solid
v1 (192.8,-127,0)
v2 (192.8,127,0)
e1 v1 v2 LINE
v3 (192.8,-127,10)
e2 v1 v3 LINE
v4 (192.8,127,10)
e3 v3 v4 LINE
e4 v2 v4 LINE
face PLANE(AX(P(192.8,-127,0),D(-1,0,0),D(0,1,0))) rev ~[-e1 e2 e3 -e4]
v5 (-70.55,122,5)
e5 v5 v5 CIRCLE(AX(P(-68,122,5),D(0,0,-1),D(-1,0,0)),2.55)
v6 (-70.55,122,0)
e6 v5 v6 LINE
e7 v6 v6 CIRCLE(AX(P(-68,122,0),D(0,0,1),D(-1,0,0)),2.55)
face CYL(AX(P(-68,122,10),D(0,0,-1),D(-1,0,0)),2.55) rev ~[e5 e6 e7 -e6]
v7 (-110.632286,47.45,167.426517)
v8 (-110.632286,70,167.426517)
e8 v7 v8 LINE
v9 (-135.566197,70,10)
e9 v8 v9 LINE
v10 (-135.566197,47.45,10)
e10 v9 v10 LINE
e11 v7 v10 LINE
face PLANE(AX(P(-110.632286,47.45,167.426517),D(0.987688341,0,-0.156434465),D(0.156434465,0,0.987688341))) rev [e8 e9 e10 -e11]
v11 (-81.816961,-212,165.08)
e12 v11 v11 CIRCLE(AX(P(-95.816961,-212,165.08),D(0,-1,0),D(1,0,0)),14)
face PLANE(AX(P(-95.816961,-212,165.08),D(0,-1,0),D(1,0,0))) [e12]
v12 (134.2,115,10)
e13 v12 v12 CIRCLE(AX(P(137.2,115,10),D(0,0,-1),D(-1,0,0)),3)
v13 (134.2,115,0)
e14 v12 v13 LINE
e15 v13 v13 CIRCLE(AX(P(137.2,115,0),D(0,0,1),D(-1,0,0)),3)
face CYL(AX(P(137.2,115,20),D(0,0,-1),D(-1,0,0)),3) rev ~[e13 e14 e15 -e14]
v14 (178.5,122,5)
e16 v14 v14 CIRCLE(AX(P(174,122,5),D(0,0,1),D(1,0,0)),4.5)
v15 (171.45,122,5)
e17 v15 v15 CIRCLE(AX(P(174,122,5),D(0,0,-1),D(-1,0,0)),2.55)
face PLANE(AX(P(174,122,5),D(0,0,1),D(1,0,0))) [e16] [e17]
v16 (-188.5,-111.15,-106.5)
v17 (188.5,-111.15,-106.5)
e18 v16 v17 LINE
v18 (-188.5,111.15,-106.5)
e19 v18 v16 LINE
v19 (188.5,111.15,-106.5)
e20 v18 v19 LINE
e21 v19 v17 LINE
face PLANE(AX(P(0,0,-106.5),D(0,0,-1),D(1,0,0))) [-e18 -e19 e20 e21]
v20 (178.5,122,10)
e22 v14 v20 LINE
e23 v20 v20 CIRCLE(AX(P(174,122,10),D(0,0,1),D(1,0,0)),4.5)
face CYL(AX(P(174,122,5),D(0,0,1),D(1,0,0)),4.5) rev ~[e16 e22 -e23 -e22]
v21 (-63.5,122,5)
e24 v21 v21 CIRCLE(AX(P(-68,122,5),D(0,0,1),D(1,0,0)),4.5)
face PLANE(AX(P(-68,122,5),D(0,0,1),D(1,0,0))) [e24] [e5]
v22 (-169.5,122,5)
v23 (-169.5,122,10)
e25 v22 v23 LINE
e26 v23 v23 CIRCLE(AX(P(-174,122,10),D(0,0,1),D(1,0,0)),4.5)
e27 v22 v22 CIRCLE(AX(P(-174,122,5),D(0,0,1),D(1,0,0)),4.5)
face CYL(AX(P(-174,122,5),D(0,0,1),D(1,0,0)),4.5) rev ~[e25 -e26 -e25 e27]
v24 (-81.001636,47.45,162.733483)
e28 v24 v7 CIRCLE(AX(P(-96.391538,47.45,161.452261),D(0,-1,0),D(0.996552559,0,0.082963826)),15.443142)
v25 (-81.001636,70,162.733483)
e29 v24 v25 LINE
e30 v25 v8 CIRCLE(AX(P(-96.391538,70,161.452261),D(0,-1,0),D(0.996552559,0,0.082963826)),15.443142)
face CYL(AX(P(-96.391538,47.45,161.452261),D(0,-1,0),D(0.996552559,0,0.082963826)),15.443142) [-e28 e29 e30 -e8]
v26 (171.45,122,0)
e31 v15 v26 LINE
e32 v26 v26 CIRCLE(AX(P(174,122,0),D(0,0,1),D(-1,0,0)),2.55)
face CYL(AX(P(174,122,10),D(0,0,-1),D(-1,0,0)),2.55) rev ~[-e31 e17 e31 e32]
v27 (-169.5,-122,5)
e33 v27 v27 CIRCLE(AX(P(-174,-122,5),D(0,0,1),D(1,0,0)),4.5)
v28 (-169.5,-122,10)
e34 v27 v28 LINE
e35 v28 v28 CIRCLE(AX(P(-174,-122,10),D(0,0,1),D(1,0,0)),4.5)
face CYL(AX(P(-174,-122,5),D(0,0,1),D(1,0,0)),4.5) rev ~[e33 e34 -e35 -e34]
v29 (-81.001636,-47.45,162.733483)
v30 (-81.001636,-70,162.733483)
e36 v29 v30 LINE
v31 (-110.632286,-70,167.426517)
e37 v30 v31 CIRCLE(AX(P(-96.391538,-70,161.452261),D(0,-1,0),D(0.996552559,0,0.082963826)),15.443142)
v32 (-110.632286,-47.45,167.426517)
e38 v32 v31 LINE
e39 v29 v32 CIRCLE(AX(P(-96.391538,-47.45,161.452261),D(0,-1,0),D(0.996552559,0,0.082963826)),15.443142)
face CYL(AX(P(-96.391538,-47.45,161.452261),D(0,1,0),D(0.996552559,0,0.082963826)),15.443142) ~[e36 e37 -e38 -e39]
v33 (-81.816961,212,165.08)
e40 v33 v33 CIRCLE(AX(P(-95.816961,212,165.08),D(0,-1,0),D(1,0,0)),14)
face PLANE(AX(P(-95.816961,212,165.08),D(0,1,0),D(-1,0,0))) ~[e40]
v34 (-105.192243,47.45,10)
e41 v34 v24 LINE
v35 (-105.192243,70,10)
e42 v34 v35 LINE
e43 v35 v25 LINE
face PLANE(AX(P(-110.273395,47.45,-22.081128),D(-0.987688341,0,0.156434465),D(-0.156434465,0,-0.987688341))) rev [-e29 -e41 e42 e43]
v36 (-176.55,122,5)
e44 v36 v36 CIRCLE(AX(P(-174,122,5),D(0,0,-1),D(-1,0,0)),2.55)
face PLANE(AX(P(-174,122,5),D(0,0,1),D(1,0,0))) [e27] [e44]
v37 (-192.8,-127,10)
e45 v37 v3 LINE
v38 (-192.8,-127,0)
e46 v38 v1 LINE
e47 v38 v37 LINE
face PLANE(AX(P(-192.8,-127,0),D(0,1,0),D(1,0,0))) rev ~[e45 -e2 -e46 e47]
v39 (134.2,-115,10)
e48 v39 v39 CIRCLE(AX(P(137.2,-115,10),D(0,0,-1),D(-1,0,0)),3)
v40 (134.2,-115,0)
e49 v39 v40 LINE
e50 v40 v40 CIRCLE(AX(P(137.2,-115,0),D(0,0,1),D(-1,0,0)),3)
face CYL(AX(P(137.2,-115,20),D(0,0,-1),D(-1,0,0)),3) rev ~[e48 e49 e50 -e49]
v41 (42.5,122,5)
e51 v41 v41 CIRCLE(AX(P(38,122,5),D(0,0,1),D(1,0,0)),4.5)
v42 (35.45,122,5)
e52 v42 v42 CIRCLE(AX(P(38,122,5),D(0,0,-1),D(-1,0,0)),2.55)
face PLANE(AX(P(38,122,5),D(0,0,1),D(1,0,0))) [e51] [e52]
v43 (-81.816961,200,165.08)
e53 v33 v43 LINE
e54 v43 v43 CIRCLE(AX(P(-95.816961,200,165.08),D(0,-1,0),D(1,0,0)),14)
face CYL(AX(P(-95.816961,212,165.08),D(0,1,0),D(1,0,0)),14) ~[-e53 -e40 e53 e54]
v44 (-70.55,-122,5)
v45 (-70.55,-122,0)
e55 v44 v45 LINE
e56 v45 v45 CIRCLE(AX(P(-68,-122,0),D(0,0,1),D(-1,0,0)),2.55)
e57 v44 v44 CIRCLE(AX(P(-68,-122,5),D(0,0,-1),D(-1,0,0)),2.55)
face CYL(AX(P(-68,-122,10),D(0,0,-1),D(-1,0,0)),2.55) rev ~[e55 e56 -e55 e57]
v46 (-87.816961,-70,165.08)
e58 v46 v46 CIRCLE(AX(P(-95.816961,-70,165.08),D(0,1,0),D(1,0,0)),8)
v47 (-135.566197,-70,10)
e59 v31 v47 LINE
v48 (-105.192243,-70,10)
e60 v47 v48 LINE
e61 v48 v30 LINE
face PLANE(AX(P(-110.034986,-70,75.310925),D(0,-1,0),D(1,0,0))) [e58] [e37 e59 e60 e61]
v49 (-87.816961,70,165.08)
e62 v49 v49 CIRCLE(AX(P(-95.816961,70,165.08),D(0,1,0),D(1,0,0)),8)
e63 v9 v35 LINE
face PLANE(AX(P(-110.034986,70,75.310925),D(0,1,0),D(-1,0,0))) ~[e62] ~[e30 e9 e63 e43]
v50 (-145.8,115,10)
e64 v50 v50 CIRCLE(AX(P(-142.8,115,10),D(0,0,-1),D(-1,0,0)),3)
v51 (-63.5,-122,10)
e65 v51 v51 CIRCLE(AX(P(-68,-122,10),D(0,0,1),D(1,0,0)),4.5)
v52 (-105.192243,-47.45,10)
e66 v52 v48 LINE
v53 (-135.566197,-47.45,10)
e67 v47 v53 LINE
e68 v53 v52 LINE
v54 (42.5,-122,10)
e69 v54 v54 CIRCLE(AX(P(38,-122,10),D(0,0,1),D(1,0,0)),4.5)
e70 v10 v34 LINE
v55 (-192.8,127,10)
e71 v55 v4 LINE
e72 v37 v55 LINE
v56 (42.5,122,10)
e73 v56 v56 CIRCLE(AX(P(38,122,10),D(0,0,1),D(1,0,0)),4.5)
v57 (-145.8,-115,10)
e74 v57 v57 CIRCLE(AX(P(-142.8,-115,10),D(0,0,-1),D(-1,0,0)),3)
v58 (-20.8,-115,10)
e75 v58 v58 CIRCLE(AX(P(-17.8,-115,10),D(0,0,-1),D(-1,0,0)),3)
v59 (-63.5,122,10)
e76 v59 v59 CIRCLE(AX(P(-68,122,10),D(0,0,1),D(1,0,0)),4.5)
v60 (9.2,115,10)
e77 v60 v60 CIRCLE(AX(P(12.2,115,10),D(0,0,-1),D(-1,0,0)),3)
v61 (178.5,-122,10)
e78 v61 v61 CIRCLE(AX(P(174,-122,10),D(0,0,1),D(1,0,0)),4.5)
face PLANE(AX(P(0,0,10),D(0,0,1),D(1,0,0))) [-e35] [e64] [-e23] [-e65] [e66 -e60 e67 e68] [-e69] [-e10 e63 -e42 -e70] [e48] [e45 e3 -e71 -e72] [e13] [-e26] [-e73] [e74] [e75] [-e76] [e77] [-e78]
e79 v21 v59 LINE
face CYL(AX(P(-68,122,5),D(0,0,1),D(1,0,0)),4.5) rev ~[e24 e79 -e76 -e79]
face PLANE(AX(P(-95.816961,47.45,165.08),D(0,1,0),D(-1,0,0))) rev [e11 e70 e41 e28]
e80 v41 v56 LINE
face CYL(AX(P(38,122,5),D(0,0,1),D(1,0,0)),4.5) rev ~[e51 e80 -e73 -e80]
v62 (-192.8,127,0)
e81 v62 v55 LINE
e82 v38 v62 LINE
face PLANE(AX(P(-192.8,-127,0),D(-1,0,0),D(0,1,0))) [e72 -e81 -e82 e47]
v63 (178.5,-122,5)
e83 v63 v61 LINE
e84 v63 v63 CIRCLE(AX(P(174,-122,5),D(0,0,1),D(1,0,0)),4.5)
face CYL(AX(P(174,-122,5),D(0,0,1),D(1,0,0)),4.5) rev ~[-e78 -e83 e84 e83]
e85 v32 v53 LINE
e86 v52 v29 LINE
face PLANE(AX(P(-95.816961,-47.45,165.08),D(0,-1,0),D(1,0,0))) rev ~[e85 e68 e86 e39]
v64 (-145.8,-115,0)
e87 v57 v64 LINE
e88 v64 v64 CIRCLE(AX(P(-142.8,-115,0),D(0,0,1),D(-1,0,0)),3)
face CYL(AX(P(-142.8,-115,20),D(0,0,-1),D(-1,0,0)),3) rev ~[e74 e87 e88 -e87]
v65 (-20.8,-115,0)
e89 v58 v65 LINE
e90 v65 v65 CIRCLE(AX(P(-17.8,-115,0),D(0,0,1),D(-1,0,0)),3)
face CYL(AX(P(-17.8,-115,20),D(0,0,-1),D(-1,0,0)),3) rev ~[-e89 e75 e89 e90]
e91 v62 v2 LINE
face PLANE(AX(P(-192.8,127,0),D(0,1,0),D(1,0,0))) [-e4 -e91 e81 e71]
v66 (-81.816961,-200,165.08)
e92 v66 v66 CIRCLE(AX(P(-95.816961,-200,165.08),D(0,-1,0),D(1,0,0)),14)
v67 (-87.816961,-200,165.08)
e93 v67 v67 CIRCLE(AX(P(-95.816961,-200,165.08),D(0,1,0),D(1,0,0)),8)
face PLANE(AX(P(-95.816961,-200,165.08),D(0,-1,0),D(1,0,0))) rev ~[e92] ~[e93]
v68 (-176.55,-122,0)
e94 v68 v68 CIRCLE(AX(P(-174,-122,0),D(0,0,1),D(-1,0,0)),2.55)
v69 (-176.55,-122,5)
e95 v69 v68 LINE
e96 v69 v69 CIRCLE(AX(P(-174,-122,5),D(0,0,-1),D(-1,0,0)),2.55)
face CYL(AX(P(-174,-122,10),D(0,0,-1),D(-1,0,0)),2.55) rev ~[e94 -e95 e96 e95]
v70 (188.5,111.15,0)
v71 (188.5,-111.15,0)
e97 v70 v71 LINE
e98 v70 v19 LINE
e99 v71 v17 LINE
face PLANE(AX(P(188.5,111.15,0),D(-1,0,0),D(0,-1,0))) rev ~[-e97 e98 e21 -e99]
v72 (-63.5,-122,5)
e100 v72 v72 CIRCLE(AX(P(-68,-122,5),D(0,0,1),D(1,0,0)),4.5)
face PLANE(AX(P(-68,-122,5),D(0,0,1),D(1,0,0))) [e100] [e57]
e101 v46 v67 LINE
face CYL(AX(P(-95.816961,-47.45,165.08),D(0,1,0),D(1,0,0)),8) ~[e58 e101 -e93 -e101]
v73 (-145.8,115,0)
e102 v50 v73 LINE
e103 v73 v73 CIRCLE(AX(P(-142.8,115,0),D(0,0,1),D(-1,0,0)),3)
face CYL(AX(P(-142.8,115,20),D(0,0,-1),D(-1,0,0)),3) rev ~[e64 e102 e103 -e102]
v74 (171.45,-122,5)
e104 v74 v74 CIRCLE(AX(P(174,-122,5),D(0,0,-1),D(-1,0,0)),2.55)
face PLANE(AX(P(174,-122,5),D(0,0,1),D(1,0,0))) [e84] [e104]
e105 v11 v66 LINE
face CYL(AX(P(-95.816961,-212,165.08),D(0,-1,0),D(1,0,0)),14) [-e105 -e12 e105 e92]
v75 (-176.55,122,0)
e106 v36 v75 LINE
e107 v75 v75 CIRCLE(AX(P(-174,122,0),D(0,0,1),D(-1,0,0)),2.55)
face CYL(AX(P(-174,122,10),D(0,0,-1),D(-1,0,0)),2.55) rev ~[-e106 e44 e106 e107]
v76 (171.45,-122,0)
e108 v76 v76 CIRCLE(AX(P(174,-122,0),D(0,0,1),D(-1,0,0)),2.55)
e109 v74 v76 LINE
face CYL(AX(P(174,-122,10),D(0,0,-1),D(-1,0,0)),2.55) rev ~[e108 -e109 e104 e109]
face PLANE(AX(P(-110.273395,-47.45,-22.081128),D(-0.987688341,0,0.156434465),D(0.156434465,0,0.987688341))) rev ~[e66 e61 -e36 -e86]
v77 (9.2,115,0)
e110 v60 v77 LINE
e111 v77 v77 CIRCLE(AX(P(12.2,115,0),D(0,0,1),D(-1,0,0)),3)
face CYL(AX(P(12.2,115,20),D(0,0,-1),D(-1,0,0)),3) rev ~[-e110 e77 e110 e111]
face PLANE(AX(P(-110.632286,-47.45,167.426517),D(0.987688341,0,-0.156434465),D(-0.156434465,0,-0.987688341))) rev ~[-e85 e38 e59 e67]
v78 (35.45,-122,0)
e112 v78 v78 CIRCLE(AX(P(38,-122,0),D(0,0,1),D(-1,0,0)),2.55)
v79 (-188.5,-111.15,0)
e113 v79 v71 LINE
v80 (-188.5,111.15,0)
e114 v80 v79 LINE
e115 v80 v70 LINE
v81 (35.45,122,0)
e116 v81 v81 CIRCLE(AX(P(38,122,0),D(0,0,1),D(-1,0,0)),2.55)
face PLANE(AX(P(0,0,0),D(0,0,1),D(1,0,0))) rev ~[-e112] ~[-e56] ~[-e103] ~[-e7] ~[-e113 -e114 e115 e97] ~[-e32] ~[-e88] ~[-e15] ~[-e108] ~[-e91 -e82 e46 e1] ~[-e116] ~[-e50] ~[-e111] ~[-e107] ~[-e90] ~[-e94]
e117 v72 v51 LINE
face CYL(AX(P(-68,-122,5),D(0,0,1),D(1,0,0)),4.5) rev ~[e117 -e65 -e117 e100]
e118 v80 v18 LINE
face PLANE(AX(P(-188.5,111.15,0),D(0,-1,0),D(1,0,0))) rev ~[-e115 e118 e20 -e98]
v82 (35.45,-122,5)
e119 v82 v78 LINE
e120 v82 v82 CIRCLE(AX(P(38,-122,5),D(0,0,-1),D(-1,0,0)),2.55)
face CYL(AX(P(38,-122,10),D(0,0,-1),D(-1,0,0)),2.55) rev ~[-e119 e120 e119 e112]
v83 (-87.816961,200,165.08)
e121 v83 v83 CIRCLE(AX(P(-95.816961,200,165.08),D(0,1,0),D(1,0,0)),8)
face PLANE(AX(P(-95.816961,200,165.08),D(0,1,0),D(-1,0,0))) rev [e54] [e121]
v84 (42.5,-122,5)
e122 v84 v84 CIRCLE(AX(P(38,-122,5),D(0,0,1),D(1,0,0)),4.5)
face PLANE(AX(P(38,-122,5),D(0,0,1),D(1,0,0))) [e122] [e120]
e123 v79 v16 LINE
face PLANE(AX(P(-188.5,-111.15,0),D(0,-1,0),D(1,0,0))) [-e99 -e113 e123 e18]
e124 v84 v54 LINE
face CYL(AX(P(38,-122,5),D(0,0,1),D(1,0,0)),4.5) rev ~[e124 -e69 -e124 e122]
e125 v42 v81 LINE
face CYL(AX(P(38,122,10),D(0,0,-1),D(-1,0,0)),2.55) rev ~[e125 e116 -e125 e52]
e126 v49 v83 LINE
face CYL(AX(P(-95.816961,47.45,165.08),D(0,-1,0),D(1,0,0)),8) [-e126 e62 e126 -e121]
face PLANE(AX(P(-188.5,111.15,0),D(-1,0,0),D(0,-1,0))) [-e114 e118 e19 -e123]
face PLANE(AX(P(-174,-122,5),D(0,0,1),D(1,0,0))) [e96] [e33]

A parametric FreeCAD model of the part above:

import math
import FreeCAD as App
import Part
import Sketcher

V = App.Vector
Q = App.Units.Quantity


def add_polygon(sketch, points):
    """Adds a closed chain of lines whose ends are joined by coincident constraints."""
    first, n = sketch.GeometryCount, len(points)
    for a, b in zip(points, points[1:] + points[:1]):
        sketch.addGeometry(Part.LineSegment(App.Vector(*a, 0), App.Vector(*b, 0)), False)
    for i in range(n):
        sketch.addConstraint(Sketcher.Constraint("Coincident", first + i, 2, first + (i + 1) % n, 1))

doc = App.newDocument("Part")
params = doc.addObject("Spreadsheet::Sheet", "Params")
for row, (alias, value) in enumerate([
    ("sketch1_height", "254 mm"),
    ("sketch1_width", "385.6 mm"),
    ("pad1_length", "10 mm"),
    ("sketch2_width", "377 mm"),
    ("sketch2_height", "222.3 mm"),
    ("pad2_length", "106.5 mm"),
    ("sketch3_diameter", "6 mm"),
    ("hole_diameter", "6 mm"),
    ("hole_depth", "10 mm"),
    ("sketch4_diameter", "5.1 mm"),
    ("hole2_diameter", "5.1 mm"),
    ("hole2_depth", "10 mm"),
    ("hole2_cbore_diameter", "9 mm"),
    ("hole2_cbore_depth", "5 mm"),
    ("sketch5_length", "30 mm"),
    ("pad3_length", "22.55 mm"),
    ("sketch6_diameter", "16 mm"),
    ("pad4_length", "164.55 mm"),
    ("sketch7_diameter", "28 mm"),
    ("pad5_length", "12 mm"),
], start=1):
    params.set(f"A{row}", alias)
    params.set(f"B{row}", "=" + value)
    params.setAlias(f"B{row}", alias)

body = doc.addObject("PartDesign::Body", "Body")

# Sketch on XY plane
sketch1 = doc.addObject("Sketcher::SketchObject", "Sketch")
body.addObject(sketch1)
sketch1.AttachmentSupport = (doc.XY_Plane, [""])
sketch1.MapMode = "FlatFace"
add_polygon(sketch1, [(-192.8, 127), (-192.8, -127), (192.8, -127), (192.8, 127)])  # lines 0-3
sketch1.addConstraint([
    Sketcher.Constraint("Vertical", 0),
    Sketcher.Constraint("Horizontal", 1),
    Sketcher.Constraint("Vertical", 2),
    Sketcher.Constraint("Horizontal", 3),
    Sketcher.Constraint("Symmetric", 0, 2, 2, 2, -1, 1),
    Sketcher.Constraint("DistanceY", 0, 2, 0, 1, 254.0),
    Sketcher.Constraint("DistanceX", 1, 1, 1, 2, 385.6),
])
sketch1.setExpression("Constraints[9]", "Params.sketch1_height")
sketch1.setExpression("Constraints[10]", "Params.sketch1_width")
pad1 = doc.addObject("PartDesign::Pad", "Pad")
body.addObject(pad1)
pad1.Profile = sketch1
pad1.setExpression("Length", "Params.pad1_length")

# Sketch on XY plane
sketch2 = doc.addObject("Sketcher::SketchObject", "Sketch001")
body.addObject(sketch2)
sketch2.AttachmentSupport = (doc.XY_Plane, [""])
sketch2.MapMode = "FlatFace"
add_polygon(sketch2, [(-188.5, -111.15), (-188.5, 111.15), (188.5, 111.15), (188.5, -111.15)])  # lines 0-3
sketch2.addConstraint([
    Sketcher.Constraint("Vertical", 0),
    Sketcher.Constraint("Horizontal", 1),
    Sketcher.Constraint("Vertical", 2),
    Sketcher.Constraint("Horizontal", 3),
    Sketcher.Constraint("Symmetric", 0, 2, 2, 2, -1, 1),
    Sketcher.Constraint("DistanceX", 1, 1, 1, 2, 377.0),
    Sketcher.Constraint("DistanceY", 0, 1, 0, 2, 222.3),
])
sketch2.setExpression("Constraints[9]", "Params.sketch2_width")
sketch2.setExpression("Constraints[10]", "Params.sketch2_height")
pad2 = doc.addObject("PartDesign::Pad", "Pad001")
body.addObject(pad2)
pad2.Profile = sketch2
pad2.setExpression("Length", "Params.pad2_length")
pad2.Reversed = True

# Sketch on XY plane
sketch3 = doc.addObject("Sketcher::SketchObject", "Sketch002")
body.addObject(sketch3)
sketch3.AttachmentSupport = (doc.XY_Plane, [""])
sketch3.MapMode = "FlatFace"
sketch3.AttachmentOffset = App.Placement(V(0, 0, 10), App.Rotation())
sketch3.addGeometry([
    Part.Circle(V(-142.8, 115, 0), V(0, 0, 1), 3),  # 0
    Part.Circle(V(12.2, 115, 0), V(0, 0, 1), 3),  # 1
    Part.Circle(V(137.2, 115, 0), V(0, 0, 1), 3),  # 2
    Part.Circle(V(137.2, -115, 0), V(0, 0, 1), 3),  # 3
    Part.Circle(V(-17.8, -115, 0), V(0, 0, 1), 3),  # 4
    Part.Circle(V(-142.8, -115, 0), V(0, 0, 1), 3),  # 5
], False)
sketch3.addConstraint([
    Sketcher.Constraint("Equal", 0, 1),
    Sketcher.Constraint("Equal", 1, 2),
    Sketcher.Constraint("Equal", 2, 3),
    Sketcher.Constraint("Equal", 3, 4),
    Sketcher.Constraint("Equal", 4, 5),
    Sketcher.Constraint("Symmetric", 2, 3, 3, 3, -1),
    Sketcher.Constraint("Symmetric", 0, 3, 5, 3, -1),
    Sketcher.Constraint("Horizontal", 0, 3, 1, 3),
    Sketcher.Constraint("Horizontal", 1, 3, 2, 3),
    Sketcher.Constraint("Horizontal", 3, 3, 4, 3),
    Sketcher.Constraint("Diameter", 0, 6.0),
    Sketcher.Constraint("DistanceY", -1, 1, 0, 3, 115.0),
    Sketcher.Constraint("DistanceX", 0, 3, 1, 3, 155.0),
    Sketcher.Constraint("DistanceX", 1, 3, 2, 3, 125.0),
    Sketcher.Constraint("DistanceX", 4, 3, 3, 3, 155.0),
    Sketcher.Constraint("DistanceX", 0, 3, -1, 1, 142.8),
])
sketch3.setExpression("Constraints[10]", "Params.sketch3_diameter")
doc.recompute()
hole = doc.addObject("PartDesign::Hole", "Hole")
body.addObject(hole)
hole.Profile = sketch3
hole.ThreadType = "None"
hole.setExpression("Diameter", "Params.hole_diameter")
hole.DepthType = "Dimension"
hole.setExpression("Depth", "Params.hole_depth")
hole.DrillPoint = "Angled"
hole.DrillPointAngle = 118

# Sketch on XY plane
sketch4 = doc.addObject("Sketcher::SketchObject", "Sketch003")
body.addObject(sketch4)
sketch4.AttachmentSupport = (doc.XY_Plane, [""])
sketch4.MapMode = "FlatFace"
sketch4.AttachmentOffset = App.Placement(V(0, 0, 10), App.Rotation())
sketch4.addGeometry([
    Part.Circle(V(-174, 122, 0), V(0, 0, 1), 2.55),  # 0
    Part.Circle(V(-68, 122, 0), V(0, 0, 1), 2.55),  # 1
    Part.Circle(V(38, 122, 0), V(0, 0, 1), 2.55),  # 2
    Part.Circle(V(174, 122, 0), V(0, 0, 1), 2.55),  # 3
    Part.Circle(V(174, -122, 0), V(0, 0, 1), 2.55),  # 4
    Part.Circle(V(38, -122, 0), V(0, 0, 1), 2.55),  # 5
    Part.Circle(V(-68, -122, 0), V(0, 0, 1), 2.55),  # 6
    Part.Circle(V(-174, -122, 0), V(0, 0, 1), 2.55),  # 7
], False)
sketch4.addConstraint([
    Sketcher.Constraint("Equal", 0, 1),
    Sketcher.Constraint("Equal", 1, 2),
    Sketcher.Constraint("Equal", 2, 3),
    Sketcher.Constraint("Equal", 3, 4),
    Sketcher.Constraint("Equal", 4, 5),
    Sketcher.Constraint("Equal", 5, 6),
    Sketcher.Constraint("Equal", 6, 7),
    Sketcher.Constraint("Symmetric", 0, 3, 4, 3, -1, 1),
    Sketcher.Constraint("Symmetric", 3, 3, 7, 3, -1, 1),
    Sketcher.Constraint("Symmetric", 0, 3, 3, 3, -2),
    Sketcher.Constraint("Symmetric", 2, 3, 5, 3, -1),
    Sketcher.Constraint("Symmetric", 1, 3, 6, 3, -1),
    Sketcher.Constraint("Horizontal", 0, 3, 1, 3),
    Sketcher.Constraint("Horizontal", 1, 3, 2, 3),
    Sketcher.Constraint("Diameter", 0, 5.1),
    Sketcher.Constraint("DistanceX", 0, 3, -1, 1, 174.0),
    Sketcher.Constraint("DistanceY", -1, 1, 0, 3, 122.0),
    Sketcher.Constraint("DistanceX", 1, 3, -1, 1, 68.0),
    Sketcher.Constraint("DistanceX", -1, 1, 2, 3, 38.0),
])
sketch4.setExpression("Constraints[14]", "Params.sketch4_diameter")
doc.recompute()
hole2 = doc.addObject("PartDesign::Hole", "Hole001")
body.addObject(hole2)
hole2.Profile = sketch4
hole2.ThreadType = "None"
hole2.setExpression("Diameter", "Params.hole2_diameter")
hole2.DepthType = "Dimension"
hole2.setExpression("Depth", "Params.hole2_depth")
hole2.DrillPoint = "Angled"
hole2.DrillPointAngle = 118
hole2.HoleCutType = "Counterbore"
hole2.setExpression("HoleCutDiameter", "Params.hole2_cbore_diameter")
hole2.setExpression("HoleCutDepth", "Params.hole2_cbore_depth")
body2 = doc.addObject("PartDesign::Body", "Body001")

# Sketch on XZ plane
sketch5 = doc.addObject("Sketcher::SketchObject", "Sketch004")
body2.addObject(sketch5)
sketch5.AttachmentSupport = (doc.getObject("XZ_Plane001"), [""])
sketch5.MapMode = "FlatFace"
sketch5.AttachmentOffset = App.Placement(V(0, 0, 47.45), App.Rotation())
sketch5.addGeometry([
    Part.ArcOfCircle(Part.Circle(V(-96.391538, 161.452261, 0), V(0, 0, 1), 15.443142), math.radians(4.758947), math.radians(157.241053)),
    Part.LineSegment(V(-110.632286, 167.426517, 0), V(-139.904045, -17.388094, 0)),
    Part.LineSegment(V(-139.904045, -17.388094, 0), V(-110.273395, -22.081128, 0)),
    Part.LineSegment(V(-110.273395, -22.081128, 0), V(-81.001636, 162.733483, 0)),
], False)
sketch5.addConstraint([
    Sketcher.Constraint("Coincident", 0, 2, 1, 1),
    Sketcher.Constraint("Coincident", 1, 2, 2, 1),
    Sketcher.Constraint("Coincident", 2, 2, 3, 1),
    Sketcher.Constraint("Coincident", 3, 2, 0, 1),
    Sketcher.Constraint("Perpendicular", 1, 2),
    Sketcher.Constraint("Perpendicular", 2, 3),
    Sketcher.Constraint("Equal", 1, 3),
    Sketcher.Constraint("Angle", 1, Q("-99 deg")),
    Sketcher.Constraint("Distance", 2, 30.0),
    Sketcher.Constraint("Radius", 0, 15.443142),
    Sketcher.Constraint("Distance", 1, 187.118348),
    Sketcher.Constraint("DistanceX", 0, 3, -1, 1, 96.391538),
    Sketcher.Constraint("DistanceY", -1, 1, 0, 3, 161.452261),
])
sketch5.setExpression("Constraints[8]", "Params.sketch5_length")
pad3 = doc.addObject("PartDesign::Pad", "Pad002")
body2.addObject(pad3)
pad3.Profile = sketch5
pad3.setExpression("Length", "Params.pad3_length")

# Sketch on XZ plane
sketch6 = doc.addObject("Sketcher::SketchObject", "Sketch005")
body2.addObject(sketch6)
sketch6.AttachmentSupport = (doc.getObject("XZ_Plane001"), [""])
sketch6.MapMode = "FlatFace"
sketch6.AttachmentOffset = App.Placement(V(0, 0, 47.45), App.Rotation())
sketch6.addGeometry(Part.Circle(V(-95.816961, 165.08, 0), V(0, 0, 1), 8), False)
sketch6.addConstraint([
    Sketcher.Constraint("Diameter", 0, 16.0),
    Sketcher.Constraint("DistanceY", -1, 1, 0, 3, 165.08),
    Sketcher.Constraint("DistanceX", 0, 3, -1, 1, 95.816961),
])
sketch6.setExpression("Constraints[0]", "Params.sketch6_diameter")
pad4 = doc.addObject("PartDesign::Pad", "Pad003")
body2.addObject(pad4)
pad4.Profile = sketch6
pad4.setExpression("Length", "Params.pad4_length")

# Sketch on XZ plane
sketch7 = doc.addObject("Sketcher::SketchObject", "Sketch006")
body2.addObject(sketch7)
sketch7.AttachmentSupport = (doc.getObject("XZ_Plane001"), [""])
sketch7.MapMode = "FlatFace"
sketch7.AttachmentOffset = App.Placement(V(0, 0, 212), App.Rotation())
sketch7.addGeometry(Part.Circle(V(-95.816961, 165.08, 0), V(0, 0, 1), 14), False)
sketch7.addConstraint([
    Sketcher.Constraint("Diameter", 0, 28.0),
    Sketcher.Constraint("DistanceY", -1, 1, 0, 3, 165.08),
    Sketcher.Constraint("DistanceX", 0, 3, -1, 1, 95.816961),
])
sketch7.setExpression("Constraints[0]", "Params.sketch7_diameter")
pad5 = doc.addObject("PartDesign::Pad", "Pad004")
body2.addObject(pad5)
pad5.Profile = sketch7
pad5.setExpression("Length", "Params.pad5_length")
pad5.Reversed = True
doc.recompute()

body3 = doc.addObject("PartDesign::Body", "Body002")
body3.BaseFeature = body2
boolean = doc.addObject("PartDesign::Boolean", "Boolean")
body.addObject(boolean)
boolean.Type = "Fuse"
boolean.addObjects([body3])
doc.recompute()

mirroring = doc.addObject("Part::Mirroring", "Mirroring")
mirroring.Source = body2
mirroring.Base = V(0, 0, 0)
mirroring.Normal = V(0, -1, 0)
body4 = doc.addObject("PartDesign::Body", "Body003")
body4.BaseFeature = mirroring
boolean2 = doc.addObject("PartDesign::Boolean", "Boolean001")
body.addObject(boolean2)
boolean2.Type = "Fuse"
boolean2.addObjects([body4])
doc.recompute()
mirroring.Visibility = False

doc.recompute()
